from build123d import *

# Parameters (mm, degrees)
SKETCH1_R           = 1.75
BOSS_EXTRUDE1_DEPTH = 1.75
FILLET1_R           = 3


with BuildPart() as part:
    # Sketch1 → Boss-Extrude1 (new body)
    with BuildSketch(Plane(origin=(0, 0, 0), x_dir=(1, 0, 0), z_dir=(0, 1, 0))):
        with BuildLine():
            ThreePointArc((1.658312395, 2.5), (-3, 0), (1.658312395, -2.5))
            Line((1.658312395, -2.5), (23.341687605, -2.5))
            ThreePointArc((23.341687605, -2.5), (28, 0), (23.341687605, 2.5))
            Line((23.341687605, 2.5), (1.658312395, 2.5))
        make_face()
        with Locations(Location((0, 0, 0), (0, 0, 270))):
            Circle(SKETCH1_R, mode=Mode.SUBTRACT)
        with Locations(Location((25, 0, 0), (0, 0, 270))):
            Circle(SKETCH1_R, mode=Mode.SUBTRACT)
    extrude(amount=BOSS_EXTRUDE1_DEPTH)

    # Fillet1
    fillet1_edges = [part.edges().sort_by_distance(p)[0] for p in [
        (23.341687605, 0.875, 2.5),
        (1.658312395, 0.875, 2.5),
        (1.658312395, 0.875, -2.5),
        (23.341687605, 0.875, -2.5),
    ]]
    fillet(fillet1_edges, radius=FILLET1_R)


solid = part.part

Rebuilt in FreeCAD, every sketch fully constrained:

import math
import FreeCAD as App
import Part
import Sketcher
from FreeCAD import Vector
Q = App.Units.Quantity


def edges_at(feature, points):
    """Names of the edges that pass closest to the given points."""
    edges = feature.Shape.Edges
    near = lambda p: min(range(len(edges)), key=lambda i: edges[i].distToShape(Part.Vertex(*p))[0])
    return sorted({f"Edge{near(p) + 1}" for p in points})

doc = App.newDocument("Part")
body = doc.addObject("PartDesign::Body", "Body")

# Sketch on XZ plane
sketch1 = doc.addObject("Sketcher::SketchObject", "Sketch")
body.addObject(sketch1)
sketch1.AttachmentSupport = (doc.XZ_Plane, [""])
sketch1.MapMode = "FlatFace"
sketch1.addGeometry([
    Part.ArcOfCircle(Part.Circle(Vector(0, 0, 0), Vector(0, 0, 1), 3), math.radians(56), math.radians(304)),  # 0
    Part.LineSegment(Vector(1.7, 2.5, 0), Vector(23.3, 2.5, 0)),  # 1
    Part.ArcOfCircle(Part.Circle(Vector(25, 0, 0), Vector(0, 0, 1), 3), math.radians(-124), math.radians(124)),  # 2
    Part.LineSegment(Vector(23.3, -2.5, 0), Vector(1.7, -2.5, 0)),  # 3
    Part.Circle(Vector(0, 0, 0), Vector(0, 0, 1), 1.8),  # 4
    Part.Circle(Vector(25, 0, 0), Vector(0, 0, 1), 1.8),  # 5
], False)
sketch1.addConstraint([
    Sketcher.Constraint("Coincident", 0, 1, 1, 1),
    Sketcher.Constraint("Coincident", 1, 2, 2, 2),
    Sketcher.Constraint("Coincident", 2, 1, 3, 1),
    Sketcher.Constraint("Coincident", 3, 2, 0, 2),
    Sketcher.Constraint("Horizontal", 1),
    Sketcher.Constraint("Horizontal", 3),
    Sketcher.Constraint("Coincident", 0, 3, -1, 1),
    Sketcher.Constraint("Coincident", 4, 3, -1, 1),
    Sketcher.Constraint("Coincident", 5, 3, 2, 3),
    Sketcher.Constraint("Equal", 0, 2),
    Sketcher.Constraint("Equal", 4, 5),
    Sketcher.Constraint("Symmetric", 1, 2, 2, 1, -1),
    Sketcher.Constraint("Radius", 0, Q("3 mm")),
    Sketcher.Constraint("Diameter", 4, Q("3.5 mm")),
    Sketcher.Constraint("DistanceX", -1, 1, 2, 3, Q("25 mm")),
    Sketcher.Constraint("DistanceY", 2, 1, 1, 2, Q("5 mm")),
])
pad1 = doc.addObject("PartDesign::Pad", "Pad")
body.addObject(pad1)
pad1.Profile = sketch1
pad1.Length = 1.75
pad1.Reversed = True
doc.recompute()

fillet = doc.addObject("PartDesign::Fillet", "Fillet")
body.addObject(fillet)
fillet.Base = (pad1, edges_at(pad1, [
    (23.342, 0.875, 2.5),
    (1.658, 0.875, 2.5),
    (1.658, 0.875, -2.5),
    (23.342, 0.875, -2.5),
]))
fillet.Radius = 3

doc.recompute()
